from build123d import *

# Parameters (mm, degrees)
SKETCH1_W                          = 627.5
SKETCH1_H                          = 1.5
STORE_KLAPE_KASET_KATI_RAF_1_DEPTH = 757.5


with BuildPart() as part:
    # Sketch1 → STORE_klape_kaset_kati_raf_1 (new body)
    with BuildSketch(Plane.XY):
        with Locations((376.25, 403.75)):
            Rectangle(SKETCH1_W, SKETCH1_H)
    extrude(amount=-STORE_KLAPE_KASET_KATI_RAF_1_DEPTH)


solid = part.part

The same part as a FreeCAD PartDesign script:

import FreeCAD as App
import Part
import Sketcher

V = App.Vector

doc = App.newDocument("Part")
params = doc.addObject("Spreadsheet::Sheet", "Params")
for row, (alias, value) in enumerate([
    ("sketch1_width", "627.5 mm"),
    ("sketch1_height", "1.5 mm"),
    ("pad1_length", "757.5 mm"),
], start=1):
    params.set(f"A{row}", alias)
    params.set(f"B{row}", "=" + value)
    params.setAlias(f"B{row}", alias)

body = doc.addObject("PartDesign::Body", "Body")

# Sketch on XY plane
sketch1 = body.newObject("Sketcher::SketchObject", "Sketch")
sketch1.AttachmentSupport = (doc.getObject("XY_Plane"), [""])
sketch1.MapMode = "FlatFace"
sketch1.addGeometry(Part.LineSegment(V(62.5, 404.5, 0), V(62.5, 403, 0)), False)
sketch1.addGeometry(Part.LineSegment(V(62.5, 403, 0), V(690, 403, 0)), False)
sketch1.addGeometry(Part.LineSegment(V(690, 403, 0), V(690, 404.5, 0)), False)
sketch1.addGeometry(Part.LineSegment(V(690, 404.5, 0), V(62.5, 404.5, 0)), False)
sketch1.addConstraint(Sketcher.Constraint("Coincident", 0, 2, 1, 1))
sketch1.addConstraint(Sketcher.Constraint("Coincident", 1, 2, 2, 1))
sketch1.addConstraint(Sketcher.Constraint("Coincident", 2, 2, 3, 1))
sketch1.addConstraint(Sketcher.Constraint("Coincident", 3, 2, 0, 1))
sketch1.addConstraint(Sketcher.Constraint("Vertical", 0))
sketch1.addConstraint(Sketcher.Constraint("Horizontal", 1))
sketch1.addConstraint(Sketcher.Constraint("Vertical", 2))
sketch1.addConstraint(Sketcher.Constraint("Horizontal", 3))
sketch1.addConstraint(Sketcher.Constraint("DistanceX", 1, 1, 1, 2, 627.5))
sketch1.addConstraint(Sketcher.Constraint("DistanceY", 0, 2, 0, 1, 1.5))
sketch1.addConstraint(Sketcher.Constraint("DistanceY", -1, 1, 0, 2, 403.0))
sketch1.addConstraint(Sketcher.Constraint("DistanceX", -1, 1, 1, 2, 690.0))
sketch1.setExpression("Constraints[8]", "Params.sketch1_width")
sketch1.setExpression("Constraints[9]", "Params.sketch1_height")
pad1 = body.newObject("PartDesign::Pad", "Pad")
pad1.Profile = sketch1
pad1.setExpression("Length", "Params.pad1_length")
pad1.Reversed = True

doc.recompute()
